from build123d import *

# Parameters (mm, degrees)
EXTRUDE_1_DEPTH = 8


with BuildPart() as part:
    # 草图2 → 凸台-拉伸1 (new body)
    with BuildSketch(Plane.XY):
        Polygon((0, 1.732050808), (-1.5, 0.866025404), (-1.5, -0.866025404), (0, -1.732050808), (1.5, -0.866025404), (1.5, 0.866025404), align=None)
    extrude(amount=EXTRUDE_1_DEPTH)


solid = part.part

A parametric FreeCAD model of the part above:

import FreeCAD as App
import Part
import Sketcher
Q = App.Units.Quantity

doc = App.newDocument("Part")
body = doc.addObject("PartDesign::Body", "Body")

# Sketch on XY plane
sketch1 = body.newObject("Sketcher::SketchObject", "Sketch")
sketch1.AttachmentSupport = (doc.getObject("XY_Plane"), [""])
sketch1.MapMode = "FlatFace"
sketch1.addGeometry(Part.LineSegment(App.Vector(0, 1.7, 0), App.Vector(-1.5, 0.9, 0)), False)
sketch1.addGeometry(Part.LineSegment(App.Vector(-1.5, 0.9, 0), App.Vector(-1.5, -0.9, 0)), False)
sketch1.addGeometry(Part.LineSegment(App.Vector(-1.5, -0.9, 0), App.Vector(0, -1.7, 0)), False)
sketch1.addGeometry(Part.LineSegment(App.Vector(0, -1.7, 0), App.Vector(1.5, -0.9, 0)), False)
sketch1.addGeometry(Part.LineSegment(App.Vector(1.5, -0.9, 0), App.Vector(1.5, 0.9, 0)), False)
sketch1.addGeometry(Part.LineSegment(App.Vector(1.5, 0.9, 0), App.Vector(0, 1.7, 0)), False)
sketch1.addConstraint(Sketcher.Constraint("Coincident", 0, 2, 1, 1))
sketch1.addConstraint(Sketcher.Constraint("Coincident", 1, 2, 2, 1))
sketch1.addConstraint(Sketcher.Constraint("Coincident", 2, 2, 3, 1))
sketch1.addConstraint(Sketcher.Constraint("Coincident", 3, 2, 4, 1))
sketch1.addConstraint(Sketcher.Constraint("Coincident", 4, 2, 5, 1))
sketch1.addConstraint(Sketcher.Constraint("Coincident", 5, 2, 0, 1))
sketch1.addConstraint(Sketcher.Constraint("Vertical", 1))
sketch1.addConstraint(Sketcher.Constraint("Vertical", 4))
sketch1.addConstraint(Sketcher.Constraint("Symmetric", 0, 2, 3, 2, -1, 1))
sketch1.addConstraint(Sketcher.Constraint("Symmetric", 2, 2, 5, 2, -1, 1))
sketch1.addConstraint(Sketcher.Constraint("PointOnObject", 2, 2, -2))
sketch1.addConstraint(Sketcher.Constraint("Parallel", 2, 5))
sketch1.addConstraint(Sketcher.Constraint("Horizontal", 1, 2, 3, 2))
sketch1.addConstraint(Sketcher.Constraint("Angle", 0, Q("-150 deg")))
sketch1.addConstraint(Sketcher.Constraint("DistanceX", 1, 2, 3, 2, 3.0))
sketch1.addConstraint(Sketcher.Constraint("DistanceY", 1, 2, 1, 1, 1.732051))
pad1 = body.newObject("PartDesign::Pad", "Pad")
pad1.Profile = sketch1
pad1.Length = 8

doc.recompute()
